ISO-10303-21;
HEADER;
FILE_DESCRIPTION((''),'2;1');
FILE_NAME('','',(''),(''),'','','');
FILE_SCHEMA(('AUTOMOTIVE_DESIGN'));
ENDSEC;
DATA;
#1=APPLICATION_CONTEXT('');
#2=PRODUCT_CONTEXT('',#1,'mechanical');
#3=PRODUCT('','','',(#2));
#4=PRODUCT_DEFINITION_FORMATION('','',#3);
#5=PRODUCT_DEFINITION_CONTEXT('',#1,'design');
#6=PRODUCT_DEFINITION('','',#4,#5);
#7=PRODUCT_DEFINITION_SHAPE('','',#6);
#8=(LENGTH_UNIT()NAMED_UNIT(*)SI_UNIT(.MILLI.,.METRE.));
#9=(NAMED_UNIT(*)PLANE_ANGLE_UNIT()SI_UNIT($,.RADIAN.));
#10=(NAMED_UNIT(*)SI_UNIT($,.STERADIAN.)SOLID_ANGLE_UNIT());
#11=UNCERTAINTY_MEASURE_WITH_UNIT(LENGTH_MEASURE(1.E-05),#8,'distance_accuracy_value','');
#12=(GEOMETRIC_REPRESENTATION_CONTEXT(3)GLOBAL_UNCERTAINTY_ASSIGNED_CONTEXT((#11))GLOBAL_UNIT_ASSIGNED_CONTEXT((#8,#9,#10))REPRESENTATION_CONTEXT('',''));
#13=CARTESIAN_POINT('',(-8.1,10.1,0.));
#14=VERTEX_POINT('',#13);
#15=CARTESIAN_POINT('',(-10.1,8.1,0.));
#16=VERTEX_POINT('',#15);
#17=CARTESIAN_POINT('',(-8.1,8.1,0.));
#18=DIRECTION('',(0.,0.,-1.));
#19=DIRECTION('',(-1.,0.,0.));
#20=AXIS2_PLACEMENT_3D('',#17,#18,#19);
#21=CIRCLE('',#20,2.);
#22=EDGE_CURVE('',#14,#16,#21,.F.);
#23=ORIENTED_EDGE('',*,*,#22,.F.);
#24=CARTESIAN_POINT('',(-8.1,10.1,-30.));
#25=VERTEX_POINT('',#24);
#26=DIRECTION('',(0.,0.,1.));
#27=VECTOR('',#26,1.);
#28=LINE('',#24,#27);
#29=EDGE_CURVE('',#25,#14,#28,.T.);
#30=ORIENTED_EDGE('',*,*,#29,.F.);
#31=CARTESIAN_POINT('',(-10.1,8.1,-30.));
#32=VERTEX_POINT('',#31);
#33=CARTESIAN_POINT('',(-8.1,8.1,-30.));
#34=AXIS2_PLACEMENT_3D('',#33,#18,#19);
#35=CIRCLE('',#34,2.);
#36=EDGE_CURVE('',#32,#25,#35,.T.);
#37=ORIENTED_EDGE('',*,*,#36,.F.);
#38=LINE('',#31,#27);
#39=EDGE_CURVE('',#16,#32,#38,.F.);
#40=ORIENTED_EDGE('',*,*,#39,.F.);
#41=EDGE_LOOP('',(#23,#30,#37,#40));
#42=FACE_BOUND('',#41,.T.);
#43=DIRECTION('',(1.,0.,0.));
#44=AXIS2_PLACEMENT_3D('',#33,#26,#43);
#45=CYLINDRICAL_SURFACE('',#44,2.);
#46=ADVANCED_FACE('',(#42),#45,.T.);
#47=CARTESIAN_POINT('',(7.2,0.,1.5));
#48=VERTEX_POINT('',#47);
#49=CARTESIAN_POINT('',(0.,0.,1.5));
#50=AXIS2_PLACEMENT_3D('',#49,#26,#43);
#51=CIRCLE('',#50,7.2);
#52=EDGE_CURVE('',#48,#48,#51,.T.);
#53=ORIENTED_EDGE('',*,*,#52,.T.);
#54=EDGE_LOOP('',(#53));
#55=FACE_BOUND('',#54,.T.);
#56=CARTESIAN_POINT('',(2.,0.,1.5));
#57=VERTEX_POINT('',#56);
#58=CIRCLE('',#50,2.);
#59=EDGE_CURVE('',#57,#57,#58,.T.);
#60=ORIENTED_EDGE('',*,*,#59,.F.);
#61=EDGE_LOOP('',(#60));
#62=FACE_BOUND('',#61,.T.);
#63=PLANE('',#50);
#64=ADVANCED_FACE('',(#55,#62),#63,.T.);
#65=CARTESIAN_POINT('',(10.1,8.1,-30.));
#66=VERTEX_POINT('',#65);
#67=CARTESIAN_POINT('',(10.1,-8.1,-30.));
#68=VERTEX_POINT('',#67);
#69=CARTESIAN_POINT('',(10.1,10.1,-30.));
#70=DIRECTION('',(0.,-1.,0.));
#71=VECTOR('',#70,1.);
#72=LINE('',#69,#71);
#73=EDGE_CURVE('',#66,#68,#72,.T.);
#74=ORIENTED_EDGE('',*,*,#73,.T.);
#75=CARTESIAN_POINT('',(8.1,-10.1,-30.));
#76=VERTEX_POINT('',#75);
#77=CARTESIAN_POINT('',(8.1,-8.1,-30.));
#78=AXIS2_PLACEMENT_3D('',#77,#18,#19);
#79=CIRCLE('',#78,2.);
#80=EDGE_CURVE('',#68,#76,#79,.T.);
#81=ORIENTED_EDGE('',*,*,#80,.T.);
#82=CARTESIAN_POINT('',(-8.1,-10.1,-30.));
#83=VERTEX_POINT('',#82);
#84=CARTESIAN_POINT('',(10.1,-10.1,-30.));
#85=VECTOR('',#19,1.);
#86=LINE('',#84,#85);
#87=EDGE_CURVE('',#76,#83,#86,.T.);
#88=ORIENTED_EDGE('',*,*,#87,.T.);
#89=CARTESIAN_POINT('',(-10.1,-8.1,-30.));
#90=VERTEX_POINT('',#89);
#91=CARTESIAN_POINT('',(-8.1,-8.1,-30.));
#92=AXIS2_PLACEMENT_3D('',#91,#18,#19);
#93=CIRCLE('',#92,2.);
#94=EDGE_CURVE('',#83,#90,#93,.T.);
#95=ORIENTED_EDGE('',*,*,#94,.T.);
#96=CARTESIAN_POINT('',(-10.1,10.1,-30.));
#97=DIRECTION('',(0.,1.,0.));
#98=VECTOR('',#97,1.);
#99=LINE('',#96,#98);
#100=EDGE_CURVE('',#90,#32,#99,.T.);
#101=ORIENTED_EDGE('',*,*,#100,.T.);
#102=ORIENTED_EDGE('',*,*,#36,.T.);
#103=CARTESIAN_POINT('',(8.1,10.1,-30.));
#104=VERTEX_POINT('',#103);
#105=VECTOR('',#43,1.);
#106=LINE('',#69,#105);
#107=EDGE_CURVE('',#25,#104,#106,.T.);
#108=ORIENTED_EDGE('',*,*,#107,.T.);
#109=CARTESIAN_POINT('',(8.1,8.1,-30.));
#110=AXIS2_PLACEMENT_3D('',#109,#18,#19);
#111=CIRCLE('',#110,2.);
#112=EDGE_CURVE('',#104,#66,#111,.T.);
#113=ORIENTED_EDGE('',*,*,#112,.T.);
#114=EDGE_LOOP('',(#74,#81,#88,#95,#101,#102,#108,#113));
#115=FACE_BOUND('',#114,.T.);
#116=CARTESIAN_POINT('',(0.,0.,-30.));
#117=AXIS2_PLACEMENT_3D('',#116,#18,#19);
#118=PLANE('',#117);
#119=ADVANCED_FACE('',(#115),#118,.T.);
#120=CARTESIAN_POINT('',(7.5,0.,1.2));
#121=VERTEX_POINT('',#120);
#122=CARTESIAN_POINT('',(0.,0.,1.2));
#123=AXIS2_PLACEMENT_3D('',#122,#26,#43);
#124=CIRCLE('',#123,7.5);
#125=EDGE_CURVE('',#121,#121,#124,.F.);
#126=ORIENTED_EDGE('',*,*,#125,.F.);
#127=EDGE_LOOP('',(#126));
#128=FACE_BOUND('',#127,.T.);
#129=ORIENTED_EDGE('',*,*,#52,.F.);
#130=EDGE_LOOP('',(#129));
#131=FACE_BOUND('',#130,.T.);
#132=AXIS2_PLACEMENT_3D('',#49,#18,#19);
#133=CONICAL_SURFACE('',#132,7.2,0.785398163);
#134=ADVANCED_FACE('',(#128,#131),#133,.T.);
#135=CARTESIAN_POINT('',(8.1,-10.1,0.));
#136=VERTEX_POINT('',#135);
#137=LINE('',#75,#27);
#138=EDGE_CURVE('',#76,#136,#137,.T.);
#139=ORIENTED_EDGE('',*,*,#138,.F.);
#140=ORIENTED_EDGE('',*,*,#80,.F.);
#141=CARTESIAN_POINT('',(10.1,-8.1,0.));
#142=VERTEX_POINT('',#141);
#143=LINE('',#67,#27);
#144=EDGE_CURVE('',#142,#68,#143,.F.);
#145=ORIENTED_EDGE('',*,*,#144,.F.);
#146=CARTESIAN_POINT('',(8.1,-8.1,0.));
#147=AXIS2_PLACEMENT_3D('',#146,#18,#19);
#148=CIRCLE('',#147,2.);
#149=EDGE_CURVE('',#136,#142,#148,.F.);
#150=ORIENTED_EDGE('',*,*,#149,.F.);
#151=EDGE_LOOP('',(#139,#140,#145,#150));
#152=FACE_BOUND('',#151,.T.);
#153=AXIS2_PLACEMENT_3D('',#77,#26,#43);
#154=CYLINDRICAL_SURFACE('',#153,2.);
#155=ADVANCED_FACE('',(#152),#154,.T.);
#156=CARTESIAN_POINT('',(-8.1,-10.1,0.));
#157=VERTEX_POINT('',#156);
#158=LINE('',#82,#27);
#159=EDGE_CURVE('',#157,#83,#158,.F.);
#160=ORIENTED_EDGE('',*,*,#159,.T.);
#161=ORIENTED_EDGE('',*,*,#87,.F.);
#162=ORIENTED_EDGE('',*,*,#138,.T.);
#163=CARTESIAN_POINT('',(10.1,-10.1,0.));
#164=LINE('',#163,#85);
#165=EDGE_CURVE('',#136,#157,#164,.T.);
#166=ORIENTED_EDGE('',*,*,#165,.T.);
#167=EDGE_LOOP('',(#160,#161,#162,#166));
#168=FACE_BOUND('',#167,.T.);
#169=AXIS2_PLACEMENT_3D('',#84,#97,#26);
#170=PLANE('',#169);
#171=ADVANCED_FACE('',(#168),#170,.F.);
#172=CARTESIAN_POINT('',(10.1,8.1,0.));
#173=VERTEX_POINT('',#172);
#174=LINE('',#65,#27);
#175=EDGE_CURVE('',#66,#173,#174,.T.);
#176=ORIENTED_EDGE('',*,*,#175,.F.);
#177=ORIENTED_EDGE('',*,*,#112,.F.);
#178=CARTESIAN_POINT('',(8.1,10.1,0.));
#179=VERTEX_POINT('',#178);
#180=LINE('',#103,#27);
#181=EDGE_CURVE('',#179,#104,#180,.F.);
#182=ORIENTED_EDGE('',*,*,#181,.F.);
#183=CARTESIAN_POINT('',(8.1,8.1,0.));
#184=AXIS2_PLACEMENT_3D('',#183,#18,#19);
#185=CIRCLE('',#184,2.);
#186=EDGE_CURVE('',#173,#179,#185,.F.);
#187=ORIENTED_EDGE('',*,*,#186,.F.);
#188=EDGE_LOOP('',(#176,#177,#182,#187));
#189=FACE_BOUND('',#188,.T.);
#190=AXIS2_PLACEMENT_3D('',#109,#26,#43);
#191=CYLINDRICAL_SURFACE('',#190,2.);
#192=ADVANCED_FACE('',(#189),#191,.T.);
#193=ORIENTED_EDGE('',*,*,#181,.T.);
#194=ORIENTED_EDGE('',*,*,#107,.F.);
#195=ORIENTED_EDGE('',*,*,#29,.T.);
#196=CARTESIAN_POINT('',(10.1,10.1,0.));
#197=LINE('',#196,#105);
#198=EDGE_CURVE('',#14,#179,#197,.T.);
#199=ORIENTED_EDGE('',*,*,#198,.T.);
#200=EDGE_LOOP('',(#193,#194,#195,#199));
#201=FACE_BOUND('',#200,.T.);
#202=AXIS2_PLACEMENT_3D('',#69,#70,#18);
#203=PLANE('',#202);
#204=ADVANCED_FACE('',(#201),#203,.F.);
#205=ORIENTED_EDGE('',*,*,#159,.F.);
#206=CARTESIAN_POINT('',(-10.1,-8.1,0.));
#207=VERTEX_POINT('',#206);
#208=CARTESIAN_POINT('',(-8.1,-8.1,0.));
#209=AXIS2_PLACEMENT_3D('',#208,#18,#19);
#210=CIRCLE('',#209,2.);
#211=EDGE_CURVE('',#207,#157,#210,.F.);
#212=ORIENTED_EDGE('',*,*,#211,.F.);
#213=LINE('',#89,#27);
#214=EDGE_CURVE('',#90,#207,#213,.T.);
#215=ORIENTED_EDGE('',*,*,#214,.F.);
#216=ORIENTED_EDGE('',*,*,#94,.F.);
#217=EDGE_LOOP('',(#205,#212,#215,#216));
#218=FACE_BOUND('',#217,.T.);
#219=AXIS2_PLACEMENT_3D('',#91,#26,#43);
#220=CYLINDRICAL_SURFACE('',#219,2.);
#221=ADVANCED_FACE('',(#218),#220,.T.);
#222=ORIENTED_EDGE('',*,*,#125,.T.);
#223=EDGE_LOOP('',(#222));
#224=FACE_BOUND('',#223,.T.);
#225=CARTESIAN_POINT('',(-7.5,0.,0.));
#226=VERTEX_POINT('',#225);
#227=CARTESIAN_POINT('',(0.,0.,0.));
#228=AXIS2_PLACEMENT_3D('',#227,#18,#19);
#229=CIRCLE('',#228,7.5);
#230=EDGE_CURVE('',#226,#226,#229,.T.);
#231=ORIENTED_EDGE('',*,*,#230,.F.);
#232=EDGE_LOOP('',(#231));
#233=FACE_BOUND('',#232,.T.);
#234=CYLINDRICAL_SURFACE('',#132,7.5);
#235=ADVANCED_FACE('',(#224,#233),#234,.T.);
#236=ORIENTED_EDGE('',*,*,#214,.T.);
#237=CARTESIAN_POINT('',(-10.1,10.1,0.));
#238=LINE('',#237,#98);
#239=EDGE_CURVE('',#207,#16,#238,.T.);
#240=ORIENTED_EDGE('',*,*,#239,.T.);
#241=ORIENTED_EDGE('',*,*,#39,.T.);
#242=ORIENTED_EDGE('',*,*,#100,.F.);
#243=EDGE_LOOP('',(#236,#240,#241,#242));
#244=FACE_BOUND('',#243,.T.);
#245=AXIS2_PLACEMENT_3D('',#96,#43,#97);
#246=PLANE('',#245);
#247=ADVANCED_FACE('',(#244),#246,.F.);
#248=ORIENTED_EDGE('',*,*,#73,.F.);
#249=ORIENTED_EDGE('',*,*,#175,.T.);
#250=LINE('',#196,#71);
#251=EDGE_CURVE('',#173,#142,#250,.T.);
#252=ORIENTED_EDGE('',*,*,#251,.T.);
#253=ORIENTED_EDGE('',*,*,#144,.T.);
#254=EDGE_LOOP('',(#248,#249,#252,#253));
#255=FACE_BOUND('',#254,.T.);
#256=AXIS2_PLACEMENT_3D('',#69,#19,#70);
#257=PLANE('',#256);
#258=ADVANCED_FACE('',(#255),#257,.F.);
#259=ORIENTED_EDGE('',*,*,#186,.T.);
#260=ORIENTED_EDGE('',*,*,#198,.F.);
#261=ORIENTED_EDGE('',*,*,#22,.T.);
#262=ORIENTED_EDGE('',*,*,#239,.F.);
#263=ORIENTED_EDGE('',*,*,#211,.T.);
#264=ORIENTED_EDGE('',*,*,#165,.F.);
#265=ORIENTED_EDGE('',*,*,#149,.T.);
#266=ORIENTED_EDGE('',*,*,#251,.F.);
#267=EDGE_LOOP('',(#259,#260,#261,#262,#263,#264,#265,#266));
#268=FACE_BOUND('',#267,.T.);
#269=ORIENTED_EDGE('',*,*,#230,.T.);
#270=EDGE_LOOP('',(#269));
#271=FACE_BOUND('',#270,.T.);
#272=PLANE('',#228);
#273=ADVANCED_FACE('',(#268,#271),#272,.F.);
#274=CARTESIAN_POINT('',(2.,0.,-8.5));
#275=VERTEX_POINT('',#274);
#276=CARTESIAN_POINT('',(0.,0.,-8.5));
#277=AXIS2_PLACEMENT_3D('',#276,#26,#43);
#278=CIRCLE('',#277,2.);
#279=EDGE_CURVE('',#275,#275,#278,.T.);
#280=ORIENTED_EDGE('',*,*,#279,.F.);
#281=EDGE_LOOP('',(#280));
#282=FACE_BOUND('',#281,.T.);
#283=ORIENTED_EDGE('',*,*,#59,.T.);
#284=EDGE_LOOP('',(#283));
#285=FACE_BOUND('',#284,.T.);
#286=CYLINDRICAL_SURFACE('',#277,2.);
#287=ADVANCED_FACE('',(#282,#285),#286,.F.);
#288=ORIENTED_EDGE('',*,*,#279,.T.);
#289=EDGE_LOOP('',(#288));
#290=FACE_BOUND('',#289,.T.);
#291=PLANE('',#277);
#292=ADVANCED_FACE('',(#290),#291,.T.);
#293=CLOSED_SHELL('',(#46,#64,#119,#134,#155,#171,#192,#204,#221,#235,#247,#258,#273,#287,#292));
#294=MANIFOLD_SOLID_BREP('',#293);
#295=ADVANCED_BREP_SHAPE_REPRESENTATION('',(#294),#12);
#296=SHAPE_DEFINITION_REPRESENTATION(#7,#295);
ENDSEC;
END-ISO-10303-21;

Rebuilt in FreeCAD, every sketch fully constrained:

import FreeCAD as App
import Part
import Sketcher
from FreeCAD import Vector
Q = App.Units.Quantity


def edges_at(feature, points):
    """Names of the edges that pass closest to the given points."""
    edges = feature.Shape.Edges
    near = lambda p: min(range(len(edges)), key=lambda i: edges[i].distToShape(Part.Vertex(*p))[0])
    return sorted({f"Edge{near(p) + 1}" for p in points})

doc = App.newDocument("Part")
body = doc.addObject("PartDesign::Body", "Body")

# Sketch on XY plane
sketch1 = doc.addObject("Sketcher::SketchObject", "Sketch")
body.addObject(sketch1)
sketch1.AttachmentSupport = (doc.XY_Plane, [""])
sketch1.MapMode = "FlatFace"
sketch1.addGeometry(Part.Circle(Vector(0, 0, 0), Vector(0, 0, 1), 8), False)
sketch1.addConstraint([
    Sketcher.Constraint("Coincident", 0, 3, -1, 1),
    Sketcher.Constraint("Diameter", 0, Q("15 mm")),
])
pad1 = doc.addObject("PartDesign::Pad", "Pad")
body.addObject(pad1)
pad1.Profile = sketch1
pad1.Length = 1.5

# Sketch on XY plane
sketch2 = doc.addObject("Sketcher::SketchObject", "Sketch001")
body.addObject(sketch2)
sketch2.AttachmentSupport = (doc.XY_Plane, [""])
sketch2.MapMode = "FlatFace"
sketch2.addGeometry([
    Part.LineSegment(Vector(10, 10, 0), Vector(10, -10, 0)),
    Part.LineSegment(Vector(10, -10, 0), Vector(-10, -10, 0)),
    Part.LineSegment(Vector(-10, -10, 0), Vector(-10, 10, 0)),
    Part.LineSegment(Vector(-10, 10, 0), Vector(10, 10, 0)),
], False)
sketch2.addConstraint([
    Sketcher.Constraint("Coincident", 0, 2, 1, 1),
    Sketcher.Constraint("Coincident", 1, 2, 2, 1),
    Sketcher.Constraint("Coincident", 2, 2, 3, 1),
    Sketcher.Constraint("Coincident", 3, 2, 0, 1),
    Sketcher.Constraint("Vertical", 0),
    Sketcher.Constraint("Horizontal", 1),
    Sketcher.Constraint("Vertical", 2),
    Sketcher.Constraint("Horizontal", 3),
    Sketcher.Constraint("Symmetric", 0, 2, 2, 2, -1, 1),
    Sketcher.Constraint("Equal", 3, 0),
    Sketcher.Constraint("DistanceX", 1, 2, 1, 1, Q("20.2 mm")),
])
pad2 = doc.addObject("PartDesign::Pad", "Pad001")
body.addObject(pad2)
pad2.Profile = sketch2
pad2.Length = 30
pad2.Reversed = True

# Sketch on XY plane
sketch3 = doc.addObject("Sketcher::SketchObject", "Sketch002")
body.addObject(sketch3)
sketch3.AttachmentSupport = (doc.XY_Plane, [""])
sketch3.MapMode = "FlatFace"
sketch3.AttachmentOffset = App.Placement(Vector(0, 0, 1.5), App.Rotation())
sketch3.addGeometry(Part.Circle(Vector(0, 0, 0), Vector(0, 0, 1), 2), False)
sketch3.addConstraint([
    Sketcher.Constraint("Coincident", 0, 3, -1, 1),
    Sketcher.Constraint("Diameter", 0, Q("4 mm")),
])
pocket1 = doc.addObject("PartDesign::Pocket", "Pocket")
body.addObject(pocket1)
pocket1.Profile = sketch3
pocket1.Length = 10
doc.recompute()

chamfer = doc.addObject("PartDesign::Chamfer", "Chamfer")
body.addObject(chamfer)
chamfer.Base = (pocket1, edges_at(pocket1, [(-7.5, 0, 1.5)]))
chamfer.Size = 0.3
doc.recompute()

fillet = doc.addObject("PartDesign::Fillet", "Fillet")
body.addObject(fillet)
fillet.Base = (chamfer, edges_at(chamfer, [
    (-10.1, -10.1, -15),
    (-10.1, 10.1, -15),
    (10.1, 10.1, -15),
    (10.1, -10.1, -15),
]))
fillet.Radius = 2

doc.recompute()
